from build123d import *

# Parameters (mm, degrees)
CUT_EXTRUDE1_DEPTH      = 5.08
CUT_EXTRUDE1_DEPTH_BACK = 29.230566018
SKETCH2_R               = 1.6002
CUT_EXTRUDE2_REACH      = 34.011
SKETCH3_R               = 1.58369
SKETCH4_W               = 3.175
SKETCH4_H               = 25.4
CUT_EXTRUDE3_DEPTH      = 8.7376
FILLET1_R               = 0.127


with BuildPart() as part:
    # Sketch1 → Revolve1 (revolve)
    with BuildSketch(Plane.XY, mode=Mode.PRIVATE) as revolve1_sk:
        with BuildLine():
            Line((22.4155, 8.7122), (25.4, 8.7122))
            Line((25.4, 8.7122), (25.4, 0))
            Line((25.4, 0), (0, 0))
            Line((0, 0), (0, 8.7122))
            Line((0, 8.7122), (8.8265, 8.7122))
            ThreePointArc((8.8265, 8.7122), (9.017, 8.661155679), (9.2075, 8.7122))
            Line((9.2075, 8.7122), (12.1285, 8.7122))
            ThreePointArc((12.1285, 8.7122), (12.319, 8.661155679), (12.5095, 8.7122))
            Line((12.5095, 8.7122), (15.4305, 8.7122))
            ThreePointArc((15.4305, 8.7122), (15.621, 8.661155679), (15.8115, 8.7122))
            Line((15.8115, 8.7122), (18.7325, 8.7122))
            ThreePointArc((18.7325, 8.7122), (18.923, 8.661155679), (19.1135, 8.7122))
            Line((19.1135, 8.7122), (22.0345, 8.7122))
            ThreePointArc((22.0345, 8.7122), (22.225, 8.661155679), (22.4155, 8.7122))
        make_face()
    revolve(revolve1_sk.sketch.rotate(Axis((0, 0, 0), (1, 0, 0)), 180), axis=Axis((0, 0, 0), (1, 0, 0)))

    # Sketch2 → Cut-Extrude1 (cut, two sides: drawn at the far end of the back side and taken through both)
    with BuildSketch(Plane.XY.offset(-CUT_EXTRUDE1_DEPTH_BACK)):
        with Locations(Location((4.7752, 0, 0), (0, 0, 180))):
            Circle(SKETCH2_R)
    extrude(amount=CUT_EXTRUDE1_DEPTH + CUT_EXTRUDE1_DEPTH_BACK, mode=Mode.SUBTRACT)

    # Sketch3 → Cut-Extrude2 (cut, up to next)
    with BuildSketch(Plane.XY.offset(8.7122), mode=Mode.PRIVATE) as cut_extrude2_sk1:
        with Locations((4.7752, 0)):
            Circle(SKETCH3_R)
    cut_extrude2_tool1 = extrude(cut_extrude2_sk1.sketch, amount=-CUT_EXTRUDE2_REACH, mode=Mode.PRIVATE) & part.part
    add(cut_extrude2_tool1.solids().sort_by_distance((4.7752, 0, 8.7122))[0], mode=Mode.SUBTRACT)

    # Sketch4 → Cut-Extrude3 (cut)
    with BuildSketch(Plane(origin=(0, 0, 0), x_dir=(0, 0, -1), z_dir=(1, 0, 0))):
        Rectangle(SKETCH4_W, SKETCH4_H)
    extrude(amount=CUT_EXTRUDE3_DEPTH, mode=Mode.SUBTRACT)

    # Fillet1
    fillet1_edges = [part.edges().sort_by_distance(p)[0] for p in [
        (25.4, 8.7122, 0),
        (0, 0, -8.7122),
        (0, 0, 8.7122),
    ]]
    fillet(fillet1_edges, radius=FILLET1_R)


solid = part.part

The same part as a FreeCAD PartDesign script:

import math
import FreeCAD as App
import Part
import Sketcher
Q = App.Units.Quantity


def edges_at(feature, points):
    """Names of the edges that pass closest to the given points."""
    edges = feature.Shape.Edges
    near = lambda p: min(range(len(edges)), key=lambda i: edges[i].distToShape(Part.Vertex(*p))[0])
    return sorted({f"Edge{near(p) + 1}" for p in points})


def add_polygon(sketch, points):
    """Adds a closed chain of lines whose ends are joined by coincident constraints."""
    first, n = sketch.GeometryCount, len(points)
    for a, b in zip(points, points[1:] + points[:1]):
        sketch.addGeometry(Part.LineSegment(App.Vector(*a, 0), App.Vector(*b, 0)), False)
    for i in range(n):
        sketch.addConstraint(Sketcher.Constraint("Coincident", first + i, 2, first + (i + 1) % n, 1))

doc = App.newDocument("Part")
params = doc.addObject("Spreadsheet::Sheet", "Params")
for row, (alias, value) in enumerate([
    ("sketch1_width", "1 in"),
    ("sketch1_radius", "0.015 in"),
    ("sketch1_width2", "0.115 in"),
    ("sketch1_height", "0.343 in"),
    ("revolution_angle", "360 deg"),
    ("sketch2_diameter", "0.126 in"),
    ("pocket1_length", "0.2 in"),
    ("pocket1_length2", "29.230566 mm"),
    ("sketch4_width", "1 in"),
    ("sketch4_height", "0.125 in"),
    ("pocket3_length", "0.344 in"),
    ("fillet_radius", "0.005 in"),
], start=1):
    params.set(f"A{row}", alias)
    params.set(f"B{row}", "=" + value)
    params.setAlias(f"B{row}", alias)

body = doc.addObject("PartDesign::Body", "Body")

# Sketch on XY plane
sketch1 = body.newObject("Sketcher::SketchObject", "Sketch")
sketch1.AttachmentSupport = (doc.getObject("XY_Plane"), [""])
sketch1.MapMode = "FlatFace"
sketch1.addGeometry([
    Part.LineSegment(App.Vector(25.4, 8.71, 0), App.Vector(22.42, 8.71, 0)),  # 0
    Part.ArcOfCircle(Part.Circle(App.Vector(22.23, 9.04, 0), App.Vector(0, 0, 1), 0.38), math.radians(-120), math.radians(-60)),  # 1
    Part.LineSegment(App.Vector(22.03, 8.71, 0), App.Vector(19.11, 8.71, 0)),  # 2
    Part.ArcOfCircle(Part.Circle(App.Vector(18.92, 9.04, 0), App.Vector(0, 0, 1), 0.38), math.radians(-120), math.radians(-60)),  # 3
    Part.LineSegment(App.Vector(18.73, 8.71, 0), App.Vector(15.81, 8.71, 0)),  # 4
    Part.ArcOfCircle(Part.Circle(App.Vector(15.62, 9.04, 0), App.Vector(0, 0, 1), 0.38), math.radians(-120), math.radians(-60)),  # 5
    Part.LineSegment(App.Vector(15.43, 8.71, 0), App.Vector(12.51, 8.71, 0)),  # 6
    Part.ArcOfCircle(Part.Circle(App.Vector(12.32, 9.04, 0), App.Vector(0, 0, 1), 0.38), math.radians(-120), math.radians(-60)),  # 7
    Part.LineSegment(App.Vector(12.13, 8.71, 0), App.Vector(9.21, 8.71, 0)),  # 8
    Part.ArcOfCircle(Part.Circle(App.Vector(9.02, 9.04, 0), App.Vector(0, 0, 1), 0.38), math.radians(-120), math.radians(-60)),  # 9
    Part.LineSegment(App.Vector(8.83, 8.71, 0), App.Vector(0, 8.71, 0)),  # 10
    Part.LineSegment(App.Vector(0, 8.71, 0), App.Vector(0, 0, 0)),  # 11
    Part.LineSegment(App.Vector(0, 0, 0), App.Vector(25.4, 0, 0)),  # 12
    Part.LineSegment(App.Vector(25.4, 0, 0), App.Vector(25.4, 8.71, 0)),  # 13
], False)
sketch1.addConstraint([
    Sketcher.Constraint("Coincident", 0, 2, 1, 2),
    Sketcher.Constraint("Coincident", 1, 1, 2, 1),
    Sketcher.Constraint("Coincident", 2, 2, 3, 2),
    Sketcher.Constraint("Coincident", 3, 1, 4, 1),
    Sketcher.Constraint("Coincident", 4, 2, 5, 2),
    Sketcher.Constraint("Coincident", 5, 1, 6, 1),
    Sketcher.Constraint("Coincident", 6, 2, 7, 2),
    Sketcher.Constraint("Coincident", 7, 1, 8, 1),
    Sketcher.Constraint("Coincident", 8, 2, 9, 2),
    Sketcher.Constraint("Coincident", 9, 1, 10, 1),
    Sketcher.Constraint("Coincident", 10, 2, 11, 1),
    Sketcher.Constraint("Coincident", 11, 2, 12, 1),
    Sketcher.Constraint("Coincident", 12, 2, 13, 1),
    Sketcher.Constraint("Coincident", 13, 2, 0, 1),
    Sketcher.Constraint("Horizontal", 0),
    Sketcher.Constraint("Horizontal", 2),
    Sketcher.Constraint("Horizontal", 4),
    Sketcher.Constraint("Horizontal", 6),
    Sketcher.Constraint("Horizontal", 8),
    Sketcher.Constraint("Horizontal", 10),
    Sketcher.Constraint("Vertical", 11),
    Sketcher.Constraint("Horizontal", 12),
    Sketcher.Constraint("Vertical", 13),
    Sketcher.Constraint("Coincident", 11, 2, -1, 1),
    Sketcher.Constraint("Equal", 1, 3),
    Sketcher.Constraint("Equal", 3, 5),
    Sketcher.Constraint("Equal", 5, 7),
    Sketcher.Constraint("Equal", 7, 9),
    Sketcher.Constraint("Horizontal", 1, 3, 3, 3),
    Sketcher.Constraint("Horizontal", 3, 3, 5, 3),
    Sketcher.Constraint("Horizontal", 5, 3, 7, 3),
    Sketcher.Constraint("Horizontal", 7, 3, 9, 3),
    Sketcher.Constraint("Horizontal", 0, 2, 1, 1),
    Sketcher.Constraint("Horizontal", 2, 2, 3, 1),
    Sketcher.Constraint("Horizontal", 4, 2, 5, 1),
    Sketcher.Constraint("Horizontal", 6, 2, 7, 1),
    Sketcher.Constraint("Horizontal", 8, 2, 9, 1),
    Sketcher.Constraint("Equal", 2, 4),
    Sketcher.Constraint("Equal", 4, 6),
    Sketcher.Constraint("Equal", 6, 8),
    Sketcher.Constraint("DistanceX", 12, 1, 12, 2, Q("1 in")),
    Sketcher.Constraint("Radius", 1, Q("0.015 in")),
    Sketcher.Constraint("DistanceX", 2, 2, 2, 1, Q("0.115 in")),
    Sketcher.Constraint("DistanceY", 11, 2, 11, 1, Q("0.343 in")),
    Sketcher.Constraint("DistanceX", 3, 3, 1, 3, Q("0.13 in")),
    Sketcher.Constraint("DistanceX", 0, 2, 0, 1, Q("0.1175 in")),
])
sketch1.setExpression("Constraints[40]", "Params.sketch1_width")
sketch1.setExpression("Constraints[41]", "Params.sketch1_radius")
sketch1.setExpression("Constraints[42]", "Params.sketch1_width2")
sketch1.setExpression("Constraints[43]", "Params.sketch1_height")
revolution = body.newObject("PartDesign::Revolution", "Revolution")
revolution.Profile = sketch1
revolution.ReferenceAxis = (sketch1, ["H_Axis"])
revolution.setExpression("Angle", "Params.revolution_angle")

# Sketch on XY plane
sketch2 = body.newObject("Sketcher::SketchObject", "Sketch001")
sketch2.AttachmentSupport = (doc.getObject("XY_Plane"), [""])
sketch2.MapMode = "FlatFace"
sketch2.addGeometry(Part.Circle(App.Vector(4.8, 0, 0), App.Vector(0, 0, 1), 1.6), False)
sketch2.addConstraint([
    Sketcher.Constraint("PointOnObject", 0, 3, -1),
    Sketcher.Constraint("Diameter", 0, Q("0.126 in")),
    Sketcher.Constraint("DistanceX", -1, 1, 0, 3, Q("0.188 in")),
])
sketch2.setExpression("Constraints[1]", "Params.sketch2_diameter")
pocket1 = body.newObject("PartDesign::Pocket", "Pocket")
pocket1.Profile = sketch2
pocket1.Type = "TwoLengths"
pocket1.setExpression("Length", "Params.pocket1_length")
pocket1.setExpression("Length2", "Params.pocket1_length2")
pocket1.Reversed = True

# Sketch on XY plane
sketch3 = body.newObject("Sketcher::SketchObject", "Sketch002")
sketch3.AttachmentSupport = (doc.getObject("XY_Plane"), [""])
sketch3.MapMode = "FlatFace"
sketch3.AttachmentOffset = App.Placement(App.Vector(0, 0, 0.343 * 25.4), App.Rotation())
sketch3.addGeometry(Part.Circle(App.Vector(4.8, 0, 0), App.Vector(0, 0, 1), 1.6), False)
sketch3.addConstraint([
    Sketcher.Constraint("PointOnObject", 0, 3, -1),
    Sketcher.Constraint("Diameter", 0, Q("0.1247 in")),
    Sketcher.Constraint("DistanceX", -1, 1, 0, 3, Q("0.188 in")),
])
pocket2 = body.newObject("PartDesign::Pocket", "Pocket001")
pocket2.Profile = sketch3
pocket2.Type = "UpToFirst"

# Sketch on YZ plane
sketch4 = body.newObject("Sketcher::SketchObject", "Sketch003")
sketch4.AttachmentSupport = (doc.getObject("YZ_Plane"), [""])
sketch4.MapMode = "FlatFace"
add_polygon(sketch4, [(12.7, 1.6), (-12.7, 1.6), (-12.7, -1.6), (12.7, -1.6)])  # lines 0-3
sketch4.addConstraint([
    Sketcher.Constraint("Horizontal", 0),
    Sketcher.Constraint("Vertical", 1),
    Sketcher.Constraint("Horizontal", 2),
    Sketcher.Constraint("Vertical", 3),
    Sketcher.Constraint("Symmetric", 0, 2, 2, 2, -1, 1),
    Sketcher.Constraint("DistanceX", 0, 2, 0, 1, Q("1 in")),
    Sketcher.Constraint("DistanceY", 1, 2, 1, 1, Q("0.125 in")),
])
sketch4.setExpression("Constraints[9]", "Params.sketch4_width")
sketch4.setExpression("Constraints[10]", "Params.sketch4_height")
pocket3 = body.newObject("PartDesign::Pocket", "Pocket002")
pocket3.Profile = sketch4
pocket3.setExpression("Length", "Params.pocket3_length")
pocket3.Reversed = True
doc.recompute()

fillet = body.newObject("PartDesign::Fillet", "Fillet")
fillet.Base = (pocket3, edges_at(pocket3, [(25.4, 8.712, 0), (0, 0, -8.712), (0, 0, 8.712)]))
fillet.setExpression("Radius", "Params.fillet_radius")

doc.recompute()
